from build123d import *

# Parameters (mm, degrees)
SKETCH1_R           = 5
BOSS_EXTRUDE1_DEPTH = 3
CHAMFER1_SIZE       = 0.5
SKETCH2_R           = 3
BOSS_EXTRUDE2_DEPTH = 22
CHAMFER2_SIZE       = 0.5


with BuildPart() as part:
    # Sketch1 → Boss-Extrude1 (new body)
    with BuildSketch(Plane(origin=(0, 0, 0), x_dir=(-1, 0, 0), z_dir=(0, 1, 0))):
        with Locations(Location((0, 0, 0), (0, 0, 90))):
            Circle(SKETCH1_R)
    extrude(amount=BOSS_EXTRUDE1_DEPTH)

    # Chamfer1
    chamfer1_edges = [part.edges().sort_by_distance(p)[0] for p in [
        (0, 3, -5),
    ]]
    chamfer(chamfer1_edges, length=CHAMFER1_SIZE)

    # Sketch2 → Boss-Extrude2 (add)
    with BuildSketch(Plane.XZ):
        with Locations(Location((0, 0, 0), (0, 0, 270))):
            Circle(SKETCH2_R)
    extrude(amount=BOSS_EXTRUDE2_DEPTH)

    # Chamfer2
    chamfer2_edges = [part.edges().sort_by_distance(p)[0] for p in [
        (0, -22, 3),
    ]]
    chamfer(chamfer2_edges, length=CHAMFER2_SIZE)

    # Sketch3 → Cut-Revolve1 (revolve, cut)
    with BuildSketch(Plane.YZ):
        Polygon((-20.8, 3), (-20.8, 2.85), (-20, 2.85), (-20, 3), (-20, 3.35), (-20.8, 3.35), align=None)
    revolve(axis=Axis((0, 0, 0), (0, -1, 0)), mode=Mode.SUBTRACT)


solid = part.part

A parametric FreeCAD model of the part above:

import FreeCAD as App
import Part
import Sketcher
from FreeCAD import Vector
Q = App.Units.Quantity


def edges_at(feature, points):
    """Names of the edges that pass closest to the given points."""
    edges = feature.Shape.Edges
    near = lambda p: min(range(len(edges)), key=lambda i: edges[i].distToShape(Part.Vertex(*p))[0])
    return sorted({f"Edge{near(p) + 1}" for p in points})

doc = App.newDocument("Part")
body = doc.addObject("PartDesign::Body", "Body")

# Sketch on XZ plane
sketch1 = body.newObject("Sketcher::SketchObject", "Sketch")
sketch1.AttachmentSupport = (doc.getObject("XZ_Plane"), [""])
sketch1.MapMode = "FlatFace"
sketch1.addGeometry(Part.Circle(Vector(0, 0, 0), Vector(0, 0, 1), 5), False)
sketch1.addConstraint([
    Sketcher.Constraint("Coincident", 0, 3, -1, 1),
    Sketcher.Constraint("Diameter", 0, Q("10 mm")),
])
pad1 = body.newObject("PartDesign::Pad", "Pad")
pad1.Profile = sketch1
pad1.Length = 3
pad1.Reversed = True
doc.recompute()

chamfer = body.newObject("PartDesign::Chamfer", "Chamfer")
chamfer.Base = (pad1, edges_at(pad1, [(0, 3, -5)]))
chamfer.Size = 0.5

# Sketch on XZ plane
sketch2 = body.newObject("Sketcher::SketchObject", "Sketch001")
sketch2.AttachmentSupport = (doc.getObject("XZ_Plane"), [""])
sketch2.MapMode = "FlatFace"
sketch2.addGeometry(Part.Circle(Vector(0, 0, 0), Vector(0, 0, 1), 3), False)
sketch2.addConstraint([
    Sketcher.Constraint("Coincident", 0, 3, -1, 1),
    Sketcher.Constraint("Diameter", 0, Q("6 mm")),
])
pad2 = body.newObject("PartDesign::Pad", "Pad001")
pad2.Profile = sketch2
pad2.Length = 22
doc.recompute()

chamfer2 = body.newObject("PartDesign::Chamfer", "Chamfer001")
chamfer2.Base = (pad2, edges_at(pad2, [(0, -22, 3)]))
chamfer2.Size = 0.5

# Sketch on YZ plane
sketch3 = body.newObject("Sketcher::SketchObject", "Sketch002")
sketch3.AttachmentSupport = (doc.getObject("YZ_Plane"), [""])
sketch3.MapMode = "FlatFace"
sketch3.addGeometry([
    Part.LineSegment(Vector(-20.8, 2.85, 0), Vector(-20, 2.85, 0)),
    Part.LineSegment(Vector(-20, 2.85, 0), Vector(-20, 3.35, 0)),
    Part.LineSegment(Vector(-20, 3.35, 0), Vector(-20.8, 3.35, 0)),
    Part.LineSegment(Vector(-20.8, 3.35, 0), Vector(-20.8, 2.85, 0)),
], False)
sketch3.addConstraint([
    Sketcher.Constraint("Coincident", 0, 2, 1, 1),
    Sketcher.Constraint("Coincident", 1, 2, 2, 1),
    Sketcher.Constraint("Coincident", 2, 2, 3, 1),
    Sketcher.Constraint("Coincident", 3, 2, 0, 1),
    Sketcher.Constraint("Horizontal", 0),
    Sketcher.Constraint("Vertical", 1),
    Sketcher.Constraint("Horizontal", 2),
    Sketcher.Constraint("Vertical", 3),
    Sketcher.Constraint("DistanceX", 0, 1, 0, 2, Q("0.8 mm")),
    Sketcher.Constraint("DistanceY", 1, 1, 1, 2, Q("0.5 mm")),
    Sketcher.Constraint("DistanceX", 0, 2, -1, 1, Q("20 mm")),
    Sketcher.Constraint("DistanceY", -1, 1, 0, 2, Q("2.85 mm")),
])
groove = body.newObject("PartDesign::Groove", "Groove")
groove.Profile = sketch3
groove.ReferenceAxis = (sketch3, ["H_Axis"])
groove.Angle = 360

doc.recompute()
